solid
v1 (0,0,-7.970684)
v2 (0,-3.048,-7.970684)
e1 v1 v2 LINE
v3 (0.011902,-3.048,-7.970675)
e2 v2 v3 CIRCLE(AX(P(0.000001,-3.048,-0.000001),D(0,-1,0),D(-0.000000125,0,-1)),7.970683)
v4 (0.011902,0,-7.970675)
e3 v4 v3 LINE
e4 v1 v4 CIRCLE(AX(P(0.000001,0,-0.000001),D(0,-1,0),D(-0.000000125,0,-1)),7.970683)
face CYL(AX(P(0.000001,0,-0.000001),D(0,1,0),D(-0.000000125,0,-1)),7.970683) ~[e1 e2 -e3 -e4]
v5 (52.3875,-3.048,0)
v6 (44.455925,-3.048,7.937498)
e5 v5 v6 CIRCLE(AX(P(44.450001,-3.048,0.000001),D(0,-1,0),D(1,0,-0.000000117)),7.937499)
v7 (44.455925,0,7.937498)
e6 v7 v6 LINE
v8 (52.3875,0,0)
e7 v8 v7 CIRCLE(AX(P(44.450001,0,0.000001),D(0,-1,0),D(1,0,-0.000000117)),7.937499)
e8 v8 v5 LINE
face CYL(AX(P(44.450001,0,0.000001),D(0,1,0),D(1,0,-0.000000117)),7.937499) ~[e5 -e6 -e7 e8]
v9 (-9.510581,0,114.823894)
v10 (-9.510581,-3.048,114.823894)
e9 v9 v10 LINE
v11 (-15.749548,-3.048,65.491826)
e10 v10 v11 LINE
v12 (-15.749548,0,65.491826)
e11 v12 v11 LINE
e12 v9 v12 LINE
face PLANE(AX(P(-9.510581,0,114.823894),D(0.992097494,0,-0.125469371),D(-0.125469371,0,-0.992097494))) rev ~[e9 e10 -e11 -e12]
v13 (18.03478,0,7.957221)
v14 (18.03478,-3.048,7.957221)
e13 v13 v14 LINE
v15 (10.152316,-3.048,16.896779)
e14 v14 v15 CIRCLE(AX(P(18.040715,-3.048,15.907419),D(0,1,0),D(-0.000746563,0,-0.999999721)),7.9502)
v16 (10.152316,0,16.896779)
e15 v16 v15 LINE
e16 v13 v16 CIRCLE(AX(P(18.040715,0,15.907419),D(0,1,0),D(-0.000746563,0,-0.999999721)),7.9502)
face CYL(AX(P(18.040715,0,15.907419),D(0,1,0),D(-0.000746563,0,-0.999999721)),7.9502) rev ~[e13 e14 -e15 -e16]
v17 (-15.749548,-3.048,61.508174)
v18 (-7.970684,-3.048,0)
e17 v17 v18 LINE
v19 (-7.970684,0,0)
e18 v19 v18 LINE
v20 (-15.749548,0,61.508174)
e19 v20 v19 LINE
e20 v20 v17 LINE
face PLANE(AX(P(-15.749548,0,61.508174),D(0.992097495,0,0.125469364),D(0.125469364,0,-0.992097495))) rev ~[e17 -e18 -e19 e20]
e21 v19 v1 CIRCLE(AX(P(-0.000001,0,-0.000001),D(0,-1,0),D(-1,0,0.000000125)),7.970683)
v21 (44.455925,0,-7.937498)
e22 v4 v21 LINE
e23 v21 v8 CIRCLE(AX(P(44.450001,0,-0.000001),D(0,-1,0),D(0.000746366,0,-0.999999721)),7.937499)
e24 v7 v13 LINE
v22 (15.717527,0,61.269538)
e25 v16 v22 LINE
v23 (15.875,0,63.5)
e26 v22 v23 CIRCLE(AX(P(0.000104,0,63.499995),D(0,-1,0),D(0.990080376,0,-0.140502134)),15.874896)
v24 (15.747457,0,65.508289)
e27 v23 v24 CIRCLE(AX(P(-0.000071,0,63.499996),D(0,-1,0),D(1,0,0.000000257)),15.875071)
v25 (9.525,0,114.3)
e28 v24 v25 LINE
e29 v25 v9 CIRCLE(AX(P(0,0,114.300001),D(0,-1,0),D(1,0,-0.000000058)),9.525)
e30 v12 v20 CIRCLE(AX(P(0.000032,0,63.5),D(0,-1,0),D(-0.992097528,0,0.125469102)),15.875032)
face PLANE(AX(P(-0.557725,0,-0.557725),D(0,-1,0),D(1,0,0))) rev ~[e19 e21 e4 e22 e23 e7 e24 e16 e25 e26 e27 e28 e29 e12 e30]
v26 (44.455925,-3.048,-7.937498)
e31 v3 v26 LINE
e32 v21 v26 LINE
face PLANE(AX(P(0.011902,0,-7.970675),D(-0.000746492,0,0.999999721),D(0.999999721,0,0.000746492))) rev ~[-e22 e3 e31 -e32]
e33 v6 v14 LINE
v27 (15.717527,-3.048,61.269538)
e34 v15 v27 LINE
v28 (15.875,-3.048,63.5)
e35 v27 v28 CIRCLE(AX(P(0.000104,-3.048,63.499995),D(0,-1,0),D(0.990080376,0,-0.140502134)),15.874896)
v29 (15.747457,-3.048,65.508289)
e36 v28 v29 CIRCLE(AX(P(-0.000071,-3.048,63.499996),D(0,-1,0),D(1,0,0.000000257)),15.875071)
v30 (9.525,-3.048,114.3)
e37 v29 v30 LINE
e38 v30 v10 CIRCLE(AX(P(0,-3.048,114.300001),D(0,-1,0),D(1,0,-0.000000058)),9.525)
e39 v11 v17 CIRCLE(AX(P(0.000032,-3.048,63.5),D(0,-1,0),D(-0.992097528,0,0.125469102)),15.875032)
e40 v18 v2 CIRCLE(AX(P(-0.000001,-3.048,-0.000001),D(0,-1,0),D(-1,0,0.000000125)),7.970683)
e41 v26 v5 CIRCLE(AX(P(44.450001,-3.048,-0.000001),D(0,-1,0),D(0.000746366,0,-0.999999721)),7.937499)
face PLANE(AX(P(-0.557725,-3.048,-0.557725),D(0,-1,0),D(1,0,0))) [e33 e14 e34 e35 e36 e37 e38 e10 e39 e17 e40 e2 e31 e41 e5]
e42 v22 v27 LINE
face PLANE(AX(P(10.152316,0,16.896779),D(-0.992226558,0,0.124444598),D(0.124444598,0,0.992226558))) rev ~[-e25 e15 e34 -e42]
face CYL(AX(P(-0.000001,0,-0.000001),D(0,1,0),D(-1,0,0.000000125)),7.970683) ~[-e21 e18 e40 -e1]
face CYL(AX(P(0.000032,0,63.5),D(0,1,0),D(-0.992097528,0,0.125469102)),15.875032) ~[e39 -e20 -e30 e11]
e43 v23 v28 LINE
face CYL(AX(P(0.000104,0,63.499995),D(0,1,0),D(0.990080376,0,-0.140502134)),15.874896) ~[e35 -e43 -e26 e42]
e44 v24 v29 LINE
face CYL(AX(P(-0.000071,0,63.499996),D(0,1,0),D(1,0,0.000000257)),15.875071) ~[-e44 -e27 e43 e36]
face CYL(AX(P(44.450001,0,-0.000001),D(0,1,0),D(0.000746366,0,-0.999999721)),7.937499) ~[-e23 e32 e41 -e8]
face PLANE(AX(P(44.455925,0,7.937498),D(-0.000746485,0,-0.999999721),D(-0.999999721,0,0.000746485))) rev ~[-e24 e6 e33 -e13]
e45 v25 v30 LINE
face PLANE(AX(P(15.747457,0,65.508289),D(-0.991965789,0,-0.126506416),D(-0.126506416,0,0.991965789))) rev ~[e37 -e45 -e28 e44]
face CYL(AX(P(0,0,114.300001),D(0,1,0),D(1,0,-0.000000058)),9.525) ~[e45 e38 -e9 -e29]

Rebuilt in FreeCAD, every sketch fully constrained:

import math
import FreeCAD as App
import Part
import Sketcher

V = App.Vector
Q = App.Units.Quantity

doc = App.newDocument("Part")
params = doc.addObject("Spreadsheet::Sheet", "Params")
for row, (alias, value) in enumerate([
    ("sketch1_radius", "0.375 in"),
    ("sketch1_radius2", "0.3125 in"),
    ("sketch1_radius3", "0.313 in"),
    ("pad1_length", "0.12 in"),
    ("sketch2_diameter", "3 in"),
    ("sketch2_diameter2", "0.25 in"),
    ("pocket1_length", "1 in"),
], start=1):
    params.set(f"A{row}", alias)
    params.set(f"B{row}", "=" + value)
    params.setAlias(f"B{row}", alias)

body = doc.addObject("PartDesign::Body", "Body")

# Sketch on XZ plane
sketch1 = body.newObject("Sketcher::SketchObject", "Sketch")
sketch1.AttachmentSupport = (doc.getObject("XZ_Plane"), [""])
sketch1.MapMode = "FlatFace"
sketch1.addGeometry(Part.ArcOfCircle(Part.Circle(V(0.000104, 63.499995, 0), V(0, 0, 1), 15.874896), math.radians(-8.076904), math.radians(0.000019)), False)
sketch1.addGeometry(Part.ArcOfCircle(Part.Circle(V(-0.000071, 63.499996, 0), V(0, 0, 1), 15.875071), math.radians(0.000015), math.radians(7.267739)), False)
sketch1.addGeometry(Part.LineSegment(V(15.747457, 65.508289, 0), V(9.525, 114.3, 0)), False)
sketch1.addGeometry(Part.ArcOfCircle(Part.Circle(V(0, 114.300001, 0), V(0, 0, 1), 9.525), math.radians(-0.000003), math.radians(176.84703)), False)
sketch1.addGeometry(Part.LineSegment(V(-9.510581, 114.823894, 0), V(-15.749548, 65.491826, 0)), False)
sketch1.addGeometry(Part.ArcOfCircle(Part.Circle(V(0.000032, 63.5, 0), V(0, 0, 1), 15.875032), math.radians(172.792153), math.radians(187.207847)), False)
sketch1.addGeometry(Part.LineSegment(V(-15.749548, 61.508174, 0), V(-7.970684, 0, 0)), False)
sketch1.addGeometry(Part.ArcOfCircle(Part.Circle(V(-0.000001, -0.000001, 0), V(0, 0, 1), 7.970683), math.radians(179.999993), math.radians(270.000007)), False)
sketch1.addGeometry(Part.ArcOfCircle(Part.Circle(V(0.000001, -0.000001, 0), V(0, 0, 1), 7.970683), math.radians(-90.000007), math.radians(-89.914451)), False)
sketch1.addGeometry(Part.LineSegment(V(0.011902, -7.970675, 0), V(44.455925, -7.937498, 0)), False)
sketch1.addGeometry(Part.ArcOfCircle(Part.Circle(V(44.450001, -0.000001, 0), V(0, 0, 1), 7.937499), math.radians(-89.957236), math.radians(0.000007)), False)
sketch1.addGeometry(Part.ArcOfCircle(Part.Circle(V(44.450001, 0.000001, 0), V(0, 0, 1), 7.937499), math.radians(-0.000007), math.radians(89.957236)), False)
sketch1.addGeometry(Part.LineSegment(V(44.455925, 7.937498, 0), V(18.03478, 7.957221, 0)), False)
sketch1.addGeometry(Part.ArcOfCircle(Part.Circle(V(18.040715, 15.907419, 0), V(0, 0, 1), 7.9502), math.radians(172.85131), math.radians(269.957225)), False)
sketch1.addGeometry(Part.LineSegment(V(10.152316, 16.896779, 0), V(15.717527, 61.269538, 0)), False)
sketch1.addConstraint(Sketcher.Constraint("Tangent", 0, 2, 1, 1))
sketch1.addConstraint(Sketcher.Constraint("Tangent", 1, 2, 2, 1))
sketch1.addConstraint(Sketcher.Constraint("Coincident", 2, 2, 3, 1))
sketch1.addConstraint(Sketcher.Constraint("Coincident", 3, 2, 4, 1))
sketch1.addConstraint(Sketcher.Constraint("Tangent", 4, 2, 5, 1))
sketch1.addConstraint(Sketcher.Constraint("Tangent", 5, 2, 6, 1))
sketch1.addConstraint(Sketcher.Constraint("Coincident", 6, 2, 7, 1))
sketch1.addConstraint(Sketcher.Constraint("Tangent", 7, 2, 8, 1))
sketch1.addConstraint(Sketcher.Constraint("Coincident", 8, 2, 9, 1))
sketch1.addConstraint(Sketcher.Constraint("Tangent", 9, 2, 10, 1))
sketch1.addConstraint(Sketcher.Constraint("Tangent", 10, 2, 11, 1))
sketch1.addConstraint(Sketcher.Constraint("Tangent", 11, 2, 12, 1))
sketch1.addConstraint(Sketcher.Constraint("Tangent", 12, 2, 13, 2))
sketch1.addConstraint(Sketcher.Constraint("Tangent", 13, 1, 14, 1))
sketch1.addConstraint(Sketcher.Constraint("Coincident", 14, 2, 0, 1))
sketch1.addConstraint(Sketcher.Constraint("Coincident", 7, 3, -1, 1))
sketch1.addConstraint(Sketcher.Constraint("Equal", 7, 8))
sketch1.addConstraint(Sketcher.Constraint("Equal", 10, 11))
sketch1.addConstraint(Sketcher.Constraint("Symmetric", 9, 2, 11, 2, -1))
sketch1.addConstraint(Sketcher.Constraint("PointOnObject", 3, 3, -2))
sketch1.addConstraint(Sketcher.Constraint("PointOnObject", 6, 2, -1))
sketch1.addConstraint(Sketcher.Constraint("PointOnObject", 7, 2, -2))
sketch1.addConstraint(Sketcher.Constraint("PointOnObject", 10, 2, -1))
sketch1.addConstraint(Sketcher.Constraint("Horizontal", 5, 3, 0, 2))
sketch1.addConstraint(Sketcher.Constraint("Horizontal", 3, 3, 2, 2))
sketch1.addConstraint(Sketcher.Constraint("Vertical", 4, 2, 5, 2))
sketch1.addConstraint(Sketcher.Constraint("Radius", 3, Q("0.375 in")))
sketch1.addConstraint(Sketcher.Constraint("Radius", 10, Q("0.3125 in")))
sketch1.addConstraint(Sketcher.Constraint("Radius", 13, Q("0.313 in")))
sketch1.addConstraint(Sketcher.Constraint("DistanceY", 1, 3, 3, 3, Q("2.0000002 in")))
sketch1.addConstraint(Sketcher.Constraint("DistanceY", 5, 3, 3, 3, Q("2 in")))
sketch1.addConstraint(Sketcher.Constraint("DistanceY", -1, 1, 1, 3, Q("2.4999998 in")))
sketch1.addConstraint(Sketcher.Constraint("DistanceX", -1, 1, 10, 3, Q("1.75 in")))
sketch1.addConstraint(Sketcher.Constraint("DistanceX", 2, 2, 0, 2, Q("0.25 in")))
sketch1.addConstraint(Sketcher.Constraint("Radius", 1, Q("15.875071 mm")))
sketch1.addConstraint(Sketcher.Constraint("Radius", 5, Q("15.875032 mm")))
sketch1.addConstraint(Sketcher.Constraint("Radius", 0, Q("15.874896 mm")))
sketch1.addConstraint(Sketcher.Constraint("Radius", 7, Q("7.970683 mm")))
sketch1.addConstraint(Sketcher.Constraint("DistanceY", 1, 3, 3, 2, Q("51.323898 mm")))
sketch1.addConstraint(Sketcher.Constraint("DistanceX", 6, 2, 13, 3, Q("26.011399 mm")))
sketch1.addConstraint(Sketcher.Constraint("DistanceX", 8, 3, 8, 2, Q("0.011901 mm")))
sketch1.addConstraint(Sketcher.Constraint("Distance", 14, Q("44.72039 mm")))
sketch1.setExpression("Constraints[26]", "Params.sketch1_radius")
sketch1.setExpression("Constraints[27]", "Params.sketch1_radius2")
sketch1.setExpression("Constraints[28]", "Params.sketch1_radius3")
pad1 = body.newObject("PartDesign::Pad", "Pad")
pad1.Profile = sketch1
pad1.setExpression("Length", "Params.pad1_length")

# Sketch on XZ plane
sketch2 = body.newObject("Sketcher::SketchObject", "Sketch001")
sketch2.AttachmentSupport = (doc.getObject("XZ_Plane"), [""])
sketch2.MapMode = "FlatFace"
sketch2.addGeometry(Part.Circle(V(0, 0, 0), V(0, 0, 1), 3.175), False)
sketch2.addGeometry(Part.Circle(V(0, 114.3, 0), V(0, 0, 1), 3.175), False)
sketch2.addGeometry(Part.Circle(V(44.45, 0, 0), V(0, 0, 1), 3.175), False)
sketch2.addGeometry(Part.Circle(V(0, 167.433287, 0), V(0, 0, 1), 38.1), False)
sketch2.addGeometry(Part.Circle(V(-3.175, 100.0252, 0), V(0, 0, 1), 3.175), False)
sketch2.addConstraint(Sketcher.Constraint("Coincident", 0, 3, -1, 1))
sketch2.addConstraint(Sketcher.Constraint("Equal", 0, 1))
sketch2.addConstraint(Sketcher.Constraint("Equal", 1, 2))
sketch2.addConstraint(Sketcher.Constraint("Equal", 2, 4))
sketch2.addConstraint(Sketcher.Constraint("PointOnObject", 1, 3, -2))
sketch2.addConstraint(Sketcher.Constraint("PointOnObject", 2, 3, -1))
sketch2.addConstraint(Sketcher.Constraint("PointOnObject", 3, 3, -2))
sketch2.addConstraint(Sketcher.Constraint("Diameter", 3, Q("3 in")))
sketch2.addConstraint(Sketcher.Constraint("Diameter", 0, Q("0.25 in")))
sketch2.addConstraint(Sketcher.Constraint("DistanceY", -1, 1, 1, 3, Q("4.5 in")))
sketch2.addConstraint(Sketcher.Constraint("DistanceX", -1, 1, 2, 3, Q("1.75 in")))
sketch2.addConstraint(Sketcher.Constraint("DistanceX", 4, 3, -1, 1, Q("0.125 in")))
sketch2.addConstraint(Sketcher.Constraint("DistanceY", -1, 1, 4, 3, Q("3.938 in")))
sketch2.addConstraint(Sketcher.Constraint("DistanceY", -1, 1, 3, 3, Q("167.433287 mm")))
sketch2.setExpression("Constraints[7]", "Params.sketch2_diameter")
sketch2.setExpression("Constraints[8]", "Params.sketch2_diameter2")
pocket1 = body.newObject("PartDesign::Pocket", "Pocket")
pocket1.Profile = sketch2
pocket1.setExpression("Length", "Params.pocket1_length")

doc.recompute()
